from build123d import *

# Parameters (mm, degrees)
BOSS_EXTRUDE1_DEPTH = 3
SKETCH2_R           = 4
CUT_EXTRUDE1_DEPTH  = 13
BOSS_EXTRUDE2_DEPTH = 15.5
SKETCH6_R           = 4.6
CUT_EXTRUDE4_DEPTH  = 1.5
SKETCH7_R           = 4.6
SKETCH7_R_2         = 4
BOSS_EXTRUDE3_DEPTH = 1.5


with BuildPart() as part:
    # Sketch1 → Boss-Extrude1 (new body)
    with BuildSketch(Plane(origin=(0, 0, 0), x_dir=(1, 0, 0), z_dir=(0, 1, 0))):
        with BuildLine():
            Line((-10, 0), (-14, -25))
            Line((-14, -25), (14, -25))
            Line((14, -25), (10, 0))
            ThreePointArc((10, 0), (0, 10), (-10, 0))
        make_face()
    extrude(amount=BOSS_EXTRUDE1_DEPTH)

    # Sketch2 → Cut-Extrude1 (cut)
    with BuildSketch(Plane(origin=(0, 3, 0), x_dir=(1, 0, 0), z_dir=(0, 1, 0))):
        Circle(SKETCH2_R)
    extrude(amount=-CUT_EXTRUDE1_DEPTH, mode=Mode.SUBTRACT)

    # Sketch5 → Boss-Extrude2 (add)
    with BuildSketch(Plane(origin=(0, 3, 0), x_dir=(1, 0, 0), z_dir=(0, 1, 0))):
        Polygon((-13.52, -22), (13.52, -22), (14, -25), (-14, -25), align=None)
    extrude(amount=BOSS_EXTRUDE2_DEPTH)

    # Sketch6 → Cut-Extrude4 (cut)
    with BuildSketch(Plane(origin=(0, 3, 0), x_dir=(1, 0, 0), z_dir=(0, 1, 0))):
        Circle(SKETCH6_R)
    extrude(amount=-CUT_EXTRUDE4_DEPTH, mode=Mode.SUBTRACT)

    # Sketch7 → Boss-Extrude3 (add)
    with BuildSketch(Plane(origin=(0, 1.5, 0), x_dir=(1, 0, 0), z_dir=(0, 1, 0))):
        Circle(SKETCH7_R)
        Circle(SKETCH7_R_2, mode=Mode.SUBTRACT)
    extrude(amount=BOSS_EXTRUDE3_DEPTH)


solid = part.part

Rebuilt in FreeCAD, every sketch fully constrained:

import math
import FreeCAD as App
import Part
import Sketcher

V = App.Vector
Q = App.Units.Quantity


def add_polygon(sketch, points):
    """Adds a closed chain of lines whose ends are joined by coincident constraints."""
    first, n = sketch.GeometryCount, len(points)
    for a, b in zip(points, points[1:] + points[:1]):
        sketch.addGeometry(Part.LineSegment(App.Vector(*a, 0), App.Vector(*b, 0)), False)
    for i in range(n):
        sketch.addConstraint(Sketcher.Constraint("Coincident", first + i, 2, first + (i + 1) % n, 1))

doc = App.newDocument("Part")
body = doc.addObject("PartDesign::Body", "Body")

# Sketch on XZ plane
sketch1 = body.newObject("Sketcher::SketchObject", "Sketch")
sketch1.AttachmentSupport = (doc.getObject("XZ_Plane"), [""])
sketch1.MapMode = "FlatFace"
sketch1.addGeometry([
    Part.LineSegment(V(-10, 0, 0), V(-14, 25, 0)),
    Part.LineSegment(V(-14, 25, 0), V(14, 25, 0)),
    Part.LineSegment(V(14, 25, 0), V(10, 0, 0)),
    Part.ArcOfCircle(Part.Circle(V(0, 0, 0), V(0, 0, 1), 10), math.radians(180), math.radians(360)),
], False)
sketch1.addConstraint([
    Sketcher.Constraint("Coincident", 0, 2, 1, 1),
    Sketcher.Constraint("Coincident", 1, 2, 2, 1),
    Sketcher.Constraint("Coincident", 2, 2, 3, 2),
    Sketcher.Constraint("Coincident", 3, 1, 0, 1),
    Sketcher.Constraint("Horizontal", 1),
    Sketcher.Constraint("Coincident", 3, 3, -1, 1),
    Sketcher.Constraint("PointOnObject", 2, 2, -1),
    Sketcher.Constraint("PointOnObject", 3, 1, -1),
    Sketcher.Constraint("Equal", 0, 2),
    Sketcher.Constraint("Radius", 3, Q("10 mm")),
    Sketcher.Constraint("DistanceX", 1, 1, 1, 2, Q("28 mm")),
    Sketcher.Constraint("DistanceY", -1, 1, 0, 2, Q("25 mm")),
])
pad1 = body.newObject("PartDesign::Pad", "Pad")
pad1.Profile = sketch1
pad1.Length = 3
pad1.Reversed = True

# Sketch on XZ plane
sketch2 = body.newObject("Sketcher::SketchObject", "Sketch001")
sketch2.AttachmentSupport = (doc.getObject("XZ_Plane"), [""])
sketch2.MapMode = "FlatFace"
sketch2.AttachmentOffset = App.Placement(V(0, 0, -3), App.Rotation())
sketch2.addGeometry(Part.Circle(V(0, 0, 0), V(0, 0, 1), 4), False)
sketch2.addConstraint([
    Sketcher.Constraint("Coincident", 0, 3, -1, 1),
    Sketcher.Constraint("Diameter", 0, Q("8 mm")),
])
pocket1 = body.newObject("PartDesign::Pocket", "Pocket")
pocket1.Profile = sketch2
pocket1.Length = 13
pocket1.Reversed = True

# Sketch on XZ plane
sketch3 = body.newObject("Sketcher::SketchObject", "Sketch002")
sketch3.AttachmentSupport = (doc.getObject("XZ_Plane"), [""])
sketch3.MapMode = "FlatFace"
sketch3.AttachmentOffset = App.Placement(V(0, 0, -3), App.Rotation())
add_polygon(sketch3, [(13.5, 22), (-13.5, 22), (-14, 25), (14, 25)])  # lines 0-3
sketch3.addConstraint([
    Sketcher.Constraint("Horizontal", 0),
    Sketcher.Constraint("Horizontal", 2),
    Sketcher.Constraint("Equal", 1, 3),
    Sketcher.Constraint("DistanceX", 2, 1, 2, 2, Q("28 mm")),
    Sketcher.Constraint("DistanceY", -1, 1, 0, 2, Q("22 mm")),
    Sketcher.Constraint("DistanceX", 1, 2, -1, 1, Q("14 mm")),
    Sketcher.Constraint("DistanceY", -1, 1, 1, 2, Q("25 mm")),
    Sketcher.Constraint("DistanceX", 0, 2, 0, 1, Q("27.04 mm")),
])
pad2 = body.newObject("PartDesign::Pad", "Pad001")
pad2.Profile = sketch3
pad2.Length = 15.5
pad2.Reversed = True

# Sketch on XZ plane
sketch4 = body.newObject("Sketcher::SketchObject", "Sketch003")
sketch4.AttachmentSupport = (doc.getObject("XZ_Plane"), [""])
sketch4.MapMode = "FlatFace"
sketch4.AttachmentOffset = App.Placement(V(0, 0, -3), App.Rotation())
sketch4.addGeometry(Part.Circle(V(0, 0, 0), V(0, 0, 1), 4.6), False)
sketch4.addConstraint([
    Sketcher.Constraint("Coincident", 0, 3, -1, 1),
    Sketcher.Constraint("Diameter", 0, Q("9.2 mm")),
])
pocket2 = body.newObject("PartDesign::Pocket", "Pocket001")
pocket2.Profile = sketch4
pocket2.Length = 1.5
pocket2.Reversed = True

# Sketch on XZ plane
sketch5 = body.newObject("Sketcher::SketchObject", "Sketch004")
sketch5.AttachmentSupport = (doc.getObject("XZ_Plane"), [""])
sketch5.MapMode = "FlatFace"
sketch5.AttachmentOffset = App.Placement(V(0, 0, -1.5), App.Rotation())
sketch5.addGeometry([
    Part.Circle(V(0, 0, 0), V(0, 0, 1), 4.6),
    Part.Circle(V(0, 0, 0), V(0, 0, 1), 4),
], False)
sketch5.addConstraint([
    Sketcher.Constraint("Coincident", 0, 3, -1, 1),
    Sketcher.Constraint("Coincident", 1, 3, -1, 1),
    Sketcher.Constraint("Diameter", 1, Q("8 mm")),
    Sketcher.Constraint("Diameter", 0, Q("9.2 mm")),
])
pad3 = body.newObject("PartDesign::Pad", "Pad002")
pad3.Profile = sketch5
pad3.Length = 1.5
pad3.Reversed = True

doc.recompute()
